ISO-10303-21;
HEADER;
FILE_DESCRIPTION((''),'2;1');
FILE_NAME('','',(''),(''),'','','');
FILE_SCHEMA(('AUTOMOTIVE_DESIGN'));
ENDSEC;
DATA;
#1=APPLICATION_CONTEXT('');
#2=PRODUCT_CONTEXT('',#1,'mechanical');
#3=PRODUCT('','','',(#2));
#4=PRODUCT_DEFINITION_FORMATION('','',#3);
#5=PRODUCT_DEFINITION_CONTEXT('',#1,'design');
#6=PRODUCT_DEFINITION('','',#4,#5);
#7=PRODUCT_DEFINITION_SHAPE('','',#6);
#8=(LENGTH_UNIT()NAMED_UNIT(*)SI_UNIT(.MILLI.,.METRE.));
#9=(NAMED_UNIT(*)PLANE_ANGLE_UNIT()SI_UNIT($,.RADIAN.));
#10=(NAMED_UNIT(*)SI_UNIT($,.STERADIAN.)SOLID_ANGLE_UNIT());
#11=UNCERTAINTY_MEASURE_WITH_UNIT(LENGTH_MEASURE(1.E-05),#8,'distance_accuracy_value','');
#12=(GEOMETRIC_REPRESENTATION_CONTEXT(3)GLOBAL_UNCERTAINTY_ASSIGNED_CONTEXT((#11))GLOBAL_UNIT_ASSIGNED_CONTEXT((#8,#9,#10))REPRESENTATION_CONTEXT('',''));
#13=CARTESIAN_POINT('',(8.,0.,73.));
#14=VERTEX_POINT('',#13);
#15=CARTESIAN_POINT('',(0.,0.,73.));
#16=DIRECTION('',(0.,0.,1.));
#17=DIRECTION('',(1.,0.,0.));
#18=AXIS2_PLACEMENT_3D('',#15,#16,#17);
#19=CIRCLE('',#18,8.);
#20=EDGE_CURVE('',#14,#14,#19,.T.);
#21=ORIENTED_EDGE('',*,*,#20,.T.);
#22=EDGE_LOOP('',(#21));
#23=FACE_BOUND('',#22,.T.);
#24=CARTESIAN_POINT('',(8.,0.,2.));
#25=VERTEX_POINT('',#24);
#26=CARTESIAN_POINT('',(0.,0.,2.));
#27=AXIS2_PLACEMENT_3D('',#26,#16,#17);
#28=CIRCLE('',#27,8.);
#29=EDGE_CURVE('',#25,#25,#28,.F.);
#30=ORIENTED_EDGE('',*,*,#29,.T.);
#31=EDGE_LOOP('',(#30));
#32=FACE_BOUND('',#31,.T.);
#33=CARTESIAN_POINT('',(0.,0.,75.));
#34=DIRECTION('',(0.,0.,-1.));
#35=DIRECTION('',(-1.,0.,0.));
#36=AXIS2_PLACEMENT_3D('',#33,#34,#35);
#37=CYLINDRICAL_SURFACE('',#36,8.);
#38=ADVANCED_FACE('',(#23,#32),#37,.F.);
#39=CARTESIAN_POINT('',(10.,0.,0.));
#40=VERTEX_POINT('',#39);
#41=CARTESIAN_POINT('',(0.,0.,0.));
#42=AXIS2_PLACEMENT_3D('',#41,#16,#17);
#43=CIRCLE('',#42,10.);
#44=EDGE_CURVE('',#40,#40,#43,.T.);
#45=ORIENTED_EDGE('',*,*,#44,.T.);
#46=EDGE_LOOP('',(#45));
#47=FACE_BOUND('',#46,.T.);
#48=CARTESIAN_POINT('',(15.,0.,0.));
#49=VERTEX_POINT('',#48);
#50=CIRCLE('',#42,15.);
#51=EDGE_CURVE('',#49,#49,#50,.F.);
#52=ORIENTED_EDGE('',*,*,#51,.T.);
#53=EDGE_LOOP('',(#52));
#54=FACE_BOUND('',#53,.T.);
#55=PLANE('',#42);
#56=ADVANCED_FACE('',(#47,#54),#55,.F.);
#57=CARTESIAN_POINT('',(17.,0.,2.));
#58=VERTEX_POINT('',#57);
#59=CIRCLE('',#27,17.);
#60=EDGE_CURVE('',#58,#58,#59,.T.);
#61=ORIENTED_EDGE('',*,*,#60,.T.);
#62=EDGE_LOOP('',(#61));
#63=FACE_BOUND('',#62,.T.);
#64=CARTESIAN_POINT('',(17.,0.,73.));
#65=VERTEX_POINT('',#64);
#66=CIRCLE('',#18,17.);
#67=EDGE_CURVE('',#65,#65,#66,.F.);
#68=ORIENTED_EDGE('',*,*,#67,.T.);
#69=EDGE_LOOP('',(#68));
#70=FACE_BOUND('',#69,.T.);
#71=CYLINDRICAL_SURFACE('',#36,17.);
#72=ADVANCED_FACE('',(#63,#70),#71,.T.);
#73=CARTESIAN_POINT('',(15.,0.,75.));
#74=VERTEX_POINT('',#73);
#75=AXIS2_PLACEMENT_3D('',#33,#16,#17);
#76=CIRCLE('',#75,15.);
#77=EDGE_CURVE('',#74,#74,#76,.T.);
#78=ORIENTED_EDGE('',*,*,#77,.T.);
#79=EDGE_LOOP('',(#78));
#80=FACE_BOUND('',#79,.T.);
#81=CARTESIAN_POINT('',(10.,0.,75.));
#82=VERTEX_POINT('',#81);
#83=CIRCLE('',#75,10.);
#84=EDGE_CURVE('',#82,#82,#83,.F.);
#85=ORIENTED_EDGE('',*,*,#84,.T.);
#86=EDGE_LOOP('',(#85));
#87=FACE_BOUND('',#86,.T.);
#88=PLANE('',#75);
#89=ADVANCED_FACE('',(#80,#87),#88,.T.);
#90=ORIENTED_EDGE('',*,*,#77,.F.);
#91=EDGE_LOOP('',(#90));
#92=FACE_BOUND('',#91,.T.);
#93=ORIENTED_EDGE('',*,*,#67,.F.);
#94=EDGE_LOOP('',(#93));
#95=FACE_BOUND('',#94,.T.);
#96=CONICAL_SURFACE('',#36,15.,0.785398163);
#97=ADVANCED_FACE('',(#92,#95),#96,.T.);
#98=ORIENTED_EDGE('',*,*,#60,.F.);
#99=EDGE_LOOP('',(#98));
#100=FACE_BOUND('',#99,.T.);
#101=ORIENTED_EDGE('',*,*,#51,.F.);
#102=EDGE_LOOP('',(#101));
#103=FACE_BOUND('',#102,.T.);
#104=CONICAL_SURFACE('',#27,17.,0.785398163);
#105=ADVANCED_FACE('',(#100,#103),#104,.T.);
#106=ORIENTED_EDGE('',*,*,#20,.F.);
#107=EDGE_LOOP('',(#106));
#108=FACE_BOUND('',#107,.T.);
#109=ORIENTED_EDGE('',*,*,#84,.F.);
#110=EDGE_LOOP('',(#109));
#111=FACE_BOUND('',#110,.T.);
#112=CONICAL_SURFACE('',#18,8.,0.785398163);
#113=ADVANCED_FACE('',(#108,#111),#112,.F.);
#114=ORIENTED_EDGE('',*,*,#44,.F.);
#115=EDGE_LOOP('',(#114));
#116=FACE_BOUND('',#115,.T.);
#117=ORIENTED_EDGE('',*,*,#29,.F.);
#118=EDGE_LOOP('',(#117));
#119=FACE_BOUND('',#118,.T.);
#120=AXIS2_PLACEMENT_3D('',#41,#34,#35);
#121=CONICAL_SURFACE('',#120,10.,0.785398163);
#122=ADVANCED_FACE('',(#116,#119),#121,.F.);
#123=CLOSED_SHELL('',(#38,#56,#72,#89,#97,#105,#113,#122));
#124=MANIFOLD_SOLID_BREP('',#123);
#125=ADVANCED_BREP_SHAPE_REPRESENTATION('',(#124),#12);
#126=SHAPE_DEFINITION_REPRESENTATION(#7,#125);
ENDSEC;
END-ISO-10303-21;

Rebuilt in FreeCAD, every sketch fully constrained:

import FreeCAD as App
import Part
import Sketcher
from FreeCAD import Vector


def edges_at(feature, points):
    """Names of the edges that pass closest to the given points."""
    edges = feature.Shape.Edges
    near = lambda p: min(range(len(edges)), key=lambda i: edges[i].distToShape(Part.Vertex(*p))[0])
    return sorted({f"Edge{near(p) + 1}" for p in points})

doc = App.newDocument("Part")
body = doc.addObject("PartDesign::Body", "Body")

# Sketch on XY plane
sketch1 = body.newObject("Sketcher::SketchObject", "Sketch")
sketch1.AttachmentSupport = (doc.getObject("XY_Plane"), [""])
sketch1.MapMode = "FlatFace"
sketch1.addGeometry([
    Part.Circle(Vector(0, 0, 0), Vector(0, 0, 1), 17),
    Part.Circle(Vector(0, 0, 0), Vector(0, 0, 1), 8),
], False)
sketch1.addConstraint([
    Sketcher.Constraint("Coincident", 0, 3, -1, 1),
    Sketcher.Constraint("Coincident", 1, 3, -1, 1),
    Sketcher.Constraint("Diameter", 0, 34.0),
    Sketcher.Constraint("Diameter", 1, 16.0),
])
pad1 = body.newObject("PartDesign::Pad", "Pad")
pad1.Profile = sketch1
pad1.Length = 75
doc.recompute()

chamfer = body.newObject("PartDesign::Chamfer", "Chamfer")
chamfer.Base = (pad1, edges_at(pad1, [
    (-17, 0, 0),
    (-17, 0, 75),
    (-8, 0, 0),
    (-8, 0, 75),
]))
chamfer.Size = 2

doc.recompute()
